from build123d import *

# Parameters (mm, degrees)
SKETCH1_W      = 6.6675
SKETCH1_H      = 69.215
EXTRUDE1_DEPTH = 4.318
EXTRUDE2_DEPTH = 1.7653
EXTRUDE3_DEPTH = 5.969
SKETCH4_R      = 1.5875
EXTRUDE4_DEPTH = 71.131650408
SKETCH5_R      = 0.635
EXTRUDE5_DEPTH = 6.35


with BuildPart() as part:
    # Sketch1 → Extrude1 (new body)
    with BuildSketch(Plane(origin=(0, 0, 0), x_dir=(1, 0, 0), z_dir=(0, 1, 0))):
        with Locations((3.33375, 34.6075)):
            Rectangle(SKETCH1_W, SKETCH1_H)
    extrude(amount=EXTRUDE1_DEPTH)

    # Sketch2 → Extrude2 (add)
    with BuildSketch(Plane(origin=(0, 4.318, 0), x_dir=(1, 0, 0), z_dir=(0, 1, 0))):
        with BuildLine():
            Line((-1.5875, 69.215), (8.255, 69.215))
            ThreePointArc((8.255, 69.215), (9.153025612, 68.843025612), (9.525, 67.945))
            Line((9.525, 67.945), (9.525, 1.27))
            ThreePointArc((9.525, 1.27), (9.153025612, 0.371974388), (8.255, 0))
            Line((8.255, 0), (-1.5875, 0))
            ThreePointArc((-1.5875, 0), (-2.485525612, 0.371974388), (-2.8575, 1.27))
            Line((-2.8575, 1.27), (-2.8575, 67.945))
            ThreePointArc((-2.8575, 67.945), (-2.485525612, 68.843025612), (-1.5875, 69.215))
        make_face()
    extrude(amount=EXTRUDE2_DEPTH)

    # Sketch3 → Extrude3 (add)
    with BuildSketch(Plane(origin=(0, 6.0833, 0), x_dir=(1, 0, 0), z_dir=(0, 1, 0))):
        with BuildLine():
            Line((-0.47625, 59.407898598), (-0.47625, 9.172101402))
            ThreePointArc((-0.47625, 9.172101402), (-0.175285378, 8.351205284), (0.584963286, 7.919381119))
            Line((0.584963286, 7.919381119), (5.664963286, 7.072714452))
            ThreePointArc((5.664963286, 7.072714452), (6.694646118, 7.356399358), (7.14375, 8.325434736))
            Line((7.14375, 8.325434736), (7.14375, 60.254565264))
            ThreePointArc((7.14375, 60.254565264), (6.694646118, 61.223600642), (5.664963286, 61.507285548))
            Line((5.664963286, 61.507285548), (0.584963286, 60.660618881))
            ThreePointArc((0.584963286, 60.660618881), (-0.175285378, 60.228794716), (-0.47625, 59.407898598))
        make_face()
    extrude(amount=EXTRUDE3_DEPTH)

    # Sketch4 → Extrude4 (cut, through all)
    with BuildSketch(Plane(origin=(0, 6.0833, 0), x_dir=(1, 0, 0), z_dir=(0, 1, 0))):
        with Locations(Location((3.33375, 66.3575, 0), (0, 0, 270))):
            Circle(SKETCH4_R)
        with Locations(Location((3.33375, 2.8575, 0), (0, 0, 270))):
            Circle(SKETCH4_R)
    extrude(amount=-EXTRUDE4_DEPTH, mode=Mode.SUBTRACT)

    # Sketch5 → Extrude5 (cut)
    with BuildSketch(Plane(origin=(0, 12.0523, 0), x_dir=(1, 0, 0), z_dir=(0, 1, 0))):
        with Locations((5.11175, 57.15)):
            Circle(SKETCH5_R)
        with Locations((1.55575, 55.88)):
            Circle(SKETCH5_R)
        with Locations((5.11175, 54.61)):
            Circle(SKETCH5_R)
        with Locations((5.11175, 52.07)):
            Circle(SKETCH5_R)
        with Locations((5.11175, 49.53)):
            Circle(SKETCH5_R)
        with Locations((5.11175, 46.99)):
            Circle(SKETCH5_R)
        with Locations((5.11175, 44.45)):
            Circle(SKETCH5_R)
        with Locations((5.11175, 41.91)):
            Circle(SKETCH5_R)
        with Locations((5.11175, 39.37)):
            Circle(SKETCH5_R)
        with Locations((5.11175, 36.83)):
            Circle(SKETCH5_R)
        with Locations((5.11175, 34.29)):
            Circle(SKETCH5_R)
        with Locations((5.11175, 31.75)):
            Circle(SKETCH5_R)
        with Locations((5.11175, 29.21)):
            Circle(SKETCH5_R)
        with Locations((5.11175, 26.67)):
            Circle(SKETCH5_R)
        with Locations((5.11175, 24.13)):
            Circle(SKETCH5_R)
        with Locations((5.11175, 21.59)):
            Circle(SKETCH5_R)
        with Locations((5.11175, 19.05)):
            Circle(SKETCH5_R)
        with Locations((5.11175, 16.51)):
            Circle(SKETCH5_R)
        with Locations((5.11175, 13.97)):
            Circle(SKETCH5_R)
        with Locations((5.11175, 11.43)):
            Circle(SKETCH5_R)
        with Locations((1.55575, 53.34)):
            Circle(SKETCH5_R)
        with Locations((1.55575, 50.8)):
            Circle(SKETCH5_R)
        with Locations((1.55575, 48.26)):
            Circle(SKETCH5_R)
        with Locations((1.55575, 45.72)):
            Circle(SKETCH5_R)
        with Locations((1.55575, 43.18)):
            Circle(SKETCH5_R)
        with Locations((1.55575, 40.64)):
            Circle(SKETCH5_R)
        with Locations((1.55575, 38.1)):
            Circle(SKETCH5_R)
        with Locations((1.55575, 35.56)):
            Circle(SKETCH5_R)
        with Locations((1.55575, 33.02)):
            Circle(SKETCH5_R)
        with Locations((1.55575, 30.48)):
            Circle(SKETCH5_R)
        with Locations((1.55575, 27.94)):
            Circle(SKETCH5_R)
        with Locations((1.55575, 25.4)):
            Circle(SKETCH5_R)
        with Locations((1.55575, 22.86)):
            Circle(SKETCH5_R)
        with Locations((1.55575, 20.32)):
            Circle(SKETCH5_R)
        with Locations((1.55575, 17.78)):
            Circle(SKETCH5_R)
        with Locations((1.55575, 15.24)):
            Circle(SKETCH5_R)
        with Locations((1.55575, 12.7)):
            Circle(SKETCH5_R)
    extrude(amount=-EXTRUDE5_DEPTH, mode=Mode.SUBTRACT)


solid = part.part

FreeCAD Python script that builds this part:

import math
import FreeCAD as App
import Part
import Sketcher

V = App.Vector
Q = App.Units.Quantity


def add_polygon(sketch, points):
    """Adds a closed chain of lines whose ends are joined by coincident constraints."""
    first, n = sketch.GeometryCount, len(points)
    for a, b in zip(points, points[1:] + points[:1]):
        sketch.addGeometry(Part.LineSegment(App.Vector(*a, 0), App.Vector(*b, 0)), False)
    for i in range(n):
        sketch.addConstraint(Sketcher.Constraint("Coincident", first + i, 2, first + (i + 1) % n, 1))

doc = App.newDocument("Part")
body = doc.addObject("PartDesign::Body", "Body")

# Sketch on XZ plane
sketch1 = body.newObject("Sketcher::SketchObject", "Sketch")
sketch1.AttachmentSupport = (doc.getObject("XZ_Plane"), [""])
sketch1.MapMode = "FlatFace"
add_polygon(sketch1, [(0, -69), (0, 0), (7, 0), (7, -69)])  # lines 0-3
sketch1.addConstraint([
    Sketcher.Constraint("Vertical", 0),
    Sketcher.Constraint("Horizontal", 1),
    Sketcher.Constraint("Vertical", 2),
    Sketcher.Constraint("Horizontal", 3),
    Sketcher.Constraint("Coincident", 0, 2, -1, 1),
    Sketcher.Constraint("DistanceY", 0, 1, 0, 2, Q("2.725 in")),
    Sketcher.Constraint("DistanceX", 1, 1, 1, 2, Q("0.2625 in")),
])
pad1 = body.newObject("PartDesign::Pad", "Pad")
pad1.Profile = sketch1
pad1.Length = Q("0.17 in")
pad1.Reversed = True

# Sketch on XZ plane
sketch2 = body.newObject("Sketcher::SketchObject", "Sketch001")
sketch2.AttachmentSupport = (doc.getObject("XZ_Plane"), [""])
sketch2.MapMode = "FlatFace"
sketch2.AttachmentOffset = App.Placement(V(0, 0, -0.17 * 25.4), App.Rotation())
sketch2.addGeometry([
    Part.LineSegment(V(8.3, -69.2, 0), V(-1.6, -69.2, 0)),  # 0
    Part.ArcOfCircle(Part.Circle(V(-1.6, -67.9, 0), V(0, 0, 1), 1.3), math.radians(180), math.radians(270)),  # 1
    Part.LineSegment(V(-2.9, -67.9, 0), V(-2.9, -1.3, 0)),  # 2
    Part.ArcOfCircle(Part.Circle(V(-1.6, -1.3, 0), V(0, 0, 1), 1.3), math.radians(90), math.radians(180)),  # 3
    Part.LineSegment(V(-1.6, 0, 0), V(8.3, 0, 0)),  # 4
    Part.ArcOfCircle(Part.Circle(V(8.3, -1.3, 0), V(0, 0, 1), 1.3), math.radians(0), math.radians(90)),  # 5
    Part.LineSegment(V(9.5, -1.3, 0), V(9.5, -67.9, 0)),  # 6
    Part.ArcOfCircle(Part.Circle(V(8.3, -67.9, 0), V(0, 0, 1), 1.3), math.radians(-90), math.radians(0)),  # 7
], False)
sketch2.addConstraint([
    Sketcher.Constraint("Tangent", 0, 2, 1, 2),
    Sketcher.Constraint("Tangent", 1, 1, 2, 1),
    Sketcher.Constraint("Tangent", 2, 2, 3, 2),
    Sketcher.Constraint("Tangent", 3, 1, 4, 1),
    Sketcher.Constraint("Tangent", 4, 2, 5, 2),
    Sketcher.Constraint("Tangent", 5, 1, 6, 1),
    Sketcher.Constraint("Tangent", 6, 2, 7, 2),
    Sketcher.Constraint("Tangent", 7, 1, 0, 1),
    Sketcher.Constraint("Horizontal", 0),
    Sketcher.Constraint("Vertical", 2),
    Sketcher.Constraint("Horizontal", 4),
    Sketcher.Constraint("Vertical", 6),
    Sketcher.Constraint("Equal", 1, 3),
    Sketcher.Constraint("Equal", 3, 5),
    Sketcher.Constraint("Equal", 5, 7),
    Sketcher.Constraint("PointOnObject", 3, 1, -1),
    Sketcher.Constraint("Radius", 1, Q("0.05 in")),
    Sketcher.Constraint("DistanceY", 2, 1, 2, 2, Q("2.625 in")),
    Sketcher.Constraint("DistanceX", 0, 2, 0, 1, Q("0.3875 in")),
    Sketcher.Constraint("DistanceX", 1, 3, -1, 1, Q("0.0625 in")),
])
pad2 = body.newObject("PartDesign::Pad", "Pad001")
pad2.Profile = sketch2
pad2.Length = Q("0.0695 in")
pad2.Reversed = True

# Sketch on XZ plane
sketch3 = body.newObject("Sketcher::SketchObject", "Sketch002")
sketch3.AttachmentSupport = (doc.getObject("XZ_Plane"), [""])
sketch3.MapMode = "FlatFace"
sketch3.AttachmentOffset = App.Placement(V(0, 0, -0.2395 * 25.4), App.Rotation())
sketch3.addGeometry([
    Part.LineSegment(V(-0.5, -59.4, 0), V(-0.5, -9.2, 0)),  # 0
    Part.ArcOfCircle(Part.Circle(V(0.8, -9.2, 0), V(0, 0, 1), 1.3), math.radians(99), math.radians(180)),  # 1
    Part.LineSegment(V(0.6, -7.9, 0), V(5.7, -7.1, 0)),  # 2
    Part.ArcOfCircle(Part.Circle(V(5.9, -8.3, 0), V(0, 0, 1), 1.3), math.radians(0), math.radians(99)),  # 3
    Part.LineSegment(V(7.1, -8.3, 0), V(7.1, -60.3, 0)),  # 4
    Part.ArcOfCircle(Part.Circle(V(5.9, -60.3, 0), V(0, 0, 1), 1.3), math.radians(-99), math.radians(0)),  # 5
    Part.LineSegment(V(5.7, -61.5, 0), V(0.6, -60.7, 0)),  # 6
    Part.ArcOfCircle(Part.Circle(V(0.8, -59.4, 0), V(0, 0, 1), 1.3), math.radians(180), math.radians(261)),  # 7
], False)
sketch3.addConstraint([
    Sketcher.Constraint("Tangent", 0, 2, 1, 2),
    Sketcher.Constraint("Tangent", 1, 1, 2, 1),
    Sketcher.Constraint("Tangent", 2, 2, 3, 2),
    Sketcher.Constraint("Tangent", 3, 1, 4, 1),
    Sketcher.Constraint("Tangent", 4, 2, 5, 2),
    Sketcher.Constraint("Tangent", 5, 1, 6, 1),
    Sketcher.Constraint("Tangent", 6, 2, 7, 2),
    Sketcher.Constraint("Tangent", 7, 1, 0, 1),
    Sketcher.Constraint("Vertical", 0),
    Sketcher.Constraint("Vertical", 4),
    Sketcher.Constraint("Equal", 1, 3),
    Sketcher.Constraint("Equal", 3, 5),
    Sketcher.Constraint("Equal", 5, 7),
    Sketcher.Constraint("Vertical", 2, 2, 5, 1),
    Sketcher.Constraint("Radius", 1, Q("0.05 in")),
    Sketcher.Constraint("DistanceX", 1, 3, 3, 3, Q("0.2 in")),
    Sketcher.Constraint("DistanceX", -1, 1, 1, 3, Q("0.03125 in")),
    Sketcher.Constraint("DistanceY", 4, 2, 4, 1, 51.929131),
    Sketcher.Constraint("DistanceY", 1, 3, -1, 1, 9.172101),
    Sketcher.Constraint("DistanceY", 7, 3, -1, 1, 59.407899),
])
pad3 = body.newObject("PartDesign::Pad", "Pad002")
pad3.Profile = sketch3
pad3.Length = Q("0.235 in")
pad3.Reversed = True

# Sketch on XZ plane
sketch4 = body.newObject("Sketcher::SketchObject", "Sketch003")
sketch4.AttachmentSupport = (doc.getObject("XZ_Plane"), [""])
sketch4.MapMode = "FlatFace"
sketch4.AttachmentOffset = App.Placement(V(0, 0, -0.2395 * 25.4), App.Rotation())
sketch4.addGeometry([
    Part.Circle(V(3.3, -66.4, 0), V(0, 0, 1), 1.6),
    Part.Circle(V(3.3, -2.9, 0), V(0, 0, 1), 1.6),
], False)
sketch4.addConstraint([
    Sketcher.Constraint("Equal", 0, 1),
    Sketcher.Constraint("Vertical", 0, 3, 1, 3),
    Sketcher.Constraint("Diameter", 0, Q("0.125 in")),
    Sketcher.Constraint("DistanceY", 0, 3, 1, 3, Q("2.5 in")),
    Sketcher.Constraint("DistanceY", 0, 3, -1, 1, Q("2.6125 in")),
    Sketcher.Constraint("DistanceX", -1, 1, 0, 3, 3.33375),
])
pocket1 = body.newObject("PartDesign::Pocket", "Pocket")
pocket1.Profile = sketch4
pocket1.Type = "ThroughAll"
pocket1.Reversed = True

# Sketch on XZ plane
sketch5 = body.newObject("Sketcher::SketchObject", "Sketch004")
sketch5.AttachmentSupport = (doc.getObject("XZ_Plane"), [""])
sketch5.MapMode = "FlatFace"
sketch5.AttachmentOffset = App.Placement(V(0, 0, -0.4745 * 25.4), App.Rotation())
sketch5.addGeometry([
    Part.Circle(V(5.1, -57.1, 0), V(0, 0, 1), 0.6),  # 0
    Part.Circle(V(1.6, -55.9, 0), V(0, 0, 1), 0.6),  # 1
    Part.Circle(V(5.1, -54.6, 0), V(0, 0, 1), 0.6),  # 2
    Part.Circle(V(5.1, -52.1, 0), V(0, 0, 1), 0.6),  # 3
    Part.Circle(V(5.1, -49.5, 0), V(0, 0, 1), 0.6),  # 4
    Part.Circle(V(5.1, -47, 0), V(0, 0, 1), 0.6),  # 5
    Part.Circle(V(5.1, -44.5, 0), V(0, 0, 1), 0.6),  # 6
    Part.Circle(V(5.1, -41.9, 0), V(0, 0, 1), 0.6),  # 7
    Part.Circle(V(5.1, -39.4, 0), V(0, 0, 1), 0.6),  # 8
    Part.Circle(V(5.1, -36.8, 0), V(0, 0, 1), 0.6),  # 9
    Part.Circle(V(5.1, -34.3, 0), V(0, 0, 1), 0.6),  # 10
    Part.Circle(V(5.1, -31.8, 0), V(0, 0, 1), 0.6),  # 11
    Part.Circle(V(5.1, -29.2, 0), V(0, 0, 1), 0.6),  # 12
    Part.Circle(V(5.1, -26.7, 0), V(0, 0, 1), 0.6),  # 13
    Part.Circle(V(5.1, -24.1, 0), V(0, 0, 1), 0.6),  # 14
    Part.Circle(V(5.1, -21.6, 0), V(0, 0, 1), 0.6),  # 15
    Part.Circle(V(5.1, -19.1, 0), V(0, 0, 1), 0.6),  # 16
    Part.Circle(V(5.1, -16.5, 0), V(0, 0, 1), 0.6),  # 17
    Part.Circle(V(5.1, -14, 0), V(0, 0, 1), 0.6),  # 18
    Part.Circle(V(5.1, -11.4, 0), V(0, 0, 1), 0.6),  # 19
    Part.Circle(V(1.6, -53.3, 0), V(0, 0, 1), 0.6),  # 20
    Part.Circle(V(1.6, -50.8, 0), V(0, 0, 1), 0.6),  # 21
    Part.Circle(V(1.6, -48.3, 0), V(0, 0, 1), 0.6),  # 22
    Part.Circle(V(1.6, -45.7, 0), V(0, 0, 1), 0.6),  # 23
    Part.Circle(V(1.6, -43.2, 0), V(0, 0, 1), 0.6),  # 24
    Part.Circle(V(1.6, -40.6, 0), V(0, 0, 1), 0.6),  # 25
    Part.Circle(V(1.6, -38.1, 0), V(0, 0, 1), 0.6),  # 26
    Part.Circle(V(1.6, -35.6, 0), V(0, 0, 1), 0.6),  # 27
    Part.Circle(V(1.6, -33, 0), V(0, 0, 1), 0.6),  # 28
    Part.Circle(V(1.6, -30.5, 0), V(0, 0, 1), 0.6),  # 29
    Part.Circle(V(1.6, -27.9, 0), V(0, 0, 1), 0.6),  # 30
    Part.Circle(V(1.6, -25.4, 0), V(0, 0, 1), 0.6),  # 31
    Part.Circle(V(1.6, -22.9, 0), V(0, 0, 1), 0.6),  # 32
    Part.Circle(V(1.6, -20.3, 0), V(0, 0, 1), 0.6),  # 33
    Part.Circle(V(1.6, -17.8, 0), V(0, 0, 1), 0.6),  # 34
    Part.Circle(V(1.6, -15.2, 0), V(0, 0, 1), 0.6),  # 35
    Part.Circle(V(1.6, -12.7, 0), V(0, 0, 1), 0.6),  # 36
], False)
sketch5.addConstraint([
    Sketcher.Constraint("Equal", 0, 1),
    Sketcher.Constraint("Equal", 1, 2),
    Sketcher.Constraint("Equal", 2, 3),
    Sketcher.Constraint("Equal", 3, 4),
    Sketcher.Constraint("Equal", 4, 5),
    Sketcher.Constraint("Equal", 5, 6),
    Sketcher.Constraint("Equal", 6, 7),
    Sketcher.Constraint("Equal", 7, 8),
    Sketcher.Constraint("Equal", 8, 9),
    Sketcher.Constraint("Equal", 9, 10),
    Sketcher.Constraint("Equal", 10, 11),
    Sketcher.Constraint("Equal", 11, 12),
    Sketcher.Constraint("Equal", 12, 13),
    Sketcher.Constraint("Equal", 13, 14),
    Sketcher.Constraint("Equal", 14, 15),
    Sketcher.Constraint("Equal", 15, 16),
    Sketcher.Constraint("Equal", 16, 17),
    Sketcher.Constraint("Equal", 17, 18),
    Sketcher.Constraint("Equal", 18, 19),
    Sketcher.Constraint("Equal", 19, 20),
    Sketcher.Constraint("Equal", 20, 21),
    Sketcher.Constraint("Equal", 21, 22),
    Sketcher.Constraint("Equal", 22, 23),
    Sketcher.Constraint("Equal", 23, 24),
    Sketcher.Constraint("Equal", 24, 25),
    Sketcher.Constraint("Equal", 25, 26),
    Sketcher.Constraint("Equal", 26, 27),
    Sketcher.Constraint("Equal", 27, 28),
    Sketcher.Constraint("Equal", 28, 29),
    Sketcher.Constraint("Equal", 29, 30),
    Sketcher.Constraint("Equal", 30, 31),
    Sketcher.Constraint("Equal", 31, 32),
    Sketcher.Constraint("Equal", 32, 33),
    Sketcher.Constraint("Equal", 33, 34),
    Sketcher.Constraint("Equal", 34, 35),
    Sketcher.Constraint("Equal", 35, 36),
    Sketcher.Constraint("Vertical", 0, 3, 2, 3),
    Sketcher.Constraint("Vertical", 2, 3, 3, 3),
    Sketcher.Constraint("Vertical", 3, 3, 4, 3),
    Sketcher.Constraint("Vertical", 4, 3, 5, 3),
    Sketcher.Constraint("Vertical", 5, 3, 6, 3),
    Sketcher.Constraint("Vertical", 6, 3, 7, 3),
    Sketcher.Constraint("Vertical", 7, 3, 8, 3),
    Sketcher.Constraint("Vertical", 8, 3, 9, 3),
    Sketcher.Constraint("Vertical", 9, 3, 10, 3),
    Sketcher.Constraint("Vertical", 10, 3, 11, 3),
    Sketcher.Constraint("Vertical", 11, 3, 12, 3),
    Sketcher.Constraint("Vertical", 12, 3, 13, 3),
    Sketcher.Constraint("Vertical", 13, 3, 14, 3),
    Sketcher.Constraint("Vertical", 14, 3, 15, 3),
    Sketcher.Constraint("Vertical", 15, 3, 16, 3),
    Sketcher.Constraint("Vertical", 16, 3, 17, 3),
    Sketcher.Constraint("Vertical", 17, 3, 18, 3),
    Sketcher.Constraint("Vertical", 18, 3, 19, 3),
    Sketcher.Constraint("Vertical", 1, 3, 20, 3),
    Sketcher.Constraint("Vertical", 20, 3, 21, 3),
    Sketcher.Constraint("Vertical", 21, 3, 22, 3),
    Sketcher.Constraint("Vertical", 22, 3, 23, 3),
    Sketcher.Constraint("Vertical", 23, 3, 24, 3),
    Sketcher.Constraint("Vertical", 24, 3, 25, 3),
    Sketcher.Constraint("Vertical", 25, 3, 26, 3),
    Sketcher.Constraint("Vertical", 26, 3, 27, 3),
    Sketcher.Constraint("Vertical", 27, 3, 28, 3),
    Sketcher.Constraint("Vertical", 28, 3, 29, 3),
    Sketcher.Constraint("Vertical", 29, 3, 30, 3),
    Sketcher.Constraint("Vertical", 30, 3, 31, 3),
    Sketcher.Constraint("Vertical", 31, 3, 32, 3),
    Sketcher.Constraint("Vertical", 32, 3, 33, 3),
    Sketcher.Constraint("Vertical", 33, 3, 34, 3),
    Sketcher.Constraint("Vertical", 34, 3, 35, 3),
    Sketcher.Constraint("Vertical", 35, 3, 36, 3),
    Sketcher.Constraint("Diameter", 0, Q("0.05 in")),
    Sketcher.Constraint("DistanceY", 21, 3, -1, 1, Q("2 in")),
    Sketcher.Constraint("DistanceY", 31, 3, -1, 1, Q("1 in")),
    Sketcher.Constraint("DistanceY", 1, 3, -1, 1, Q("2.2 in")),
    Sketcher.Constraint("DistanceY", 20, 3, -1, 1, Q("2.1 in")),
    Sketcher.Constraint("DistanceY", 22, 3, -1, 1, Q("1.9 in")),
    Sketcher.Constraint("DistanceY", 23, 3, -1, 1, Q("1.8 in")),
    Sketcher.Constraint("DistanceY", 24, 3, -1, 1, Q("1.7 in")),
    Sketcher.Constraint("DistanceY", 25, 3, -1, 1, Q("1.6 in")),
    Sketcher.Constraint("DistanceY", 26, 3, -1, 1, Q("1.5 in")),
    Sketcher.Constraint("DistanceY", 27, 3, -1, 1, Q("1.4 in")),
    Sketcher.Constraint("DistanceY", 28, 3, -1, 1, Q("1.3 in")),
    Sketcher.Constraint("DistanceY", 29, 3, -1, 1, Q("1.2 in")),
    Sketcher.Constraint("DistanceY", 30, 3, -1, 1, Q("1.1 in")),
    Sketcher.Constraint("DistanceY", 32, 3, -1, 1, Q("0.9 in")),
    Sketcher.Constraint("DistanceY", 33, 3, -1, 1, Q("0.8 in")),
    Sketcher.Constraint("DistanceY", 34, 3, -1, 1, Q("0.7 in")),
    Sketcher.Constraint("DistanceY", 35, 3, -1, 1, Q("0.6 in")),
    Sketcher.Constraint("DistanceY", 36, 3, -1, 1, Q("0.5 in")),
    Sketcher.Constraint("DistanceY", 0, 3, 2, 3, Q("0.1 in")),
    Sketcher.Constraint("DistanceY", 2, 3, 3, 3, Q("0.1 in")),
    Sketcher.Constraint("DistanceY", 3, 3, 4, 3, Q("0.1 in")),
    Sketcher.Constraint("DistanceY", 4, 3, 5, 3, Q("0.1 in")),
    Sketcher.Constraint("DistanceY", 5, 3, 6, 3, Q("0.1 in")),
    Sketcher.Constraint("DistanceY", 6, 3, 7, 3, Q("0.1 in")),
    Sketcher.Constraint("DistanceY", 7, 3, 8, 3, Q("0.1 in")),
    Sketcher.Constraint("DistanceY", 8, 3, 9, 3, Q("0.1 in")),
    Sketcher.Constraint("DistanceY", 9, 3, 10, 3, Q("0.1 in")),
    Sketcher.Constraint("DistanceY", 10, 3, 11, 3, Q("0.1 in")),
    Sketcher.Constraint("DistanceY", 11, 3, 12, 3, Q("0.1 in")),
    Sketcher.Constraint("DistanceY", 12, 3, 13, 3, Q("0.1 in")),
    Sketcher.Constraint("DistanceY", 13, 3, 14, 3, Q("0.1 in")),
    Sketcher.Constraint("DistanceY", 14, 3, 15, 3, Q("0.1 in")),
    Sketcher.Constraint("DistanceY", 15, 3, 16, 3, Q("0.1 in")),
    Sketcher.Constraint("DistanceY", 16, 3, 17, 3, Q("0.1 in")),
    Sketcher.Constraint("DistanceY", 17, 3, 18, 3, Q("0.1 in")),
    Sketcher.Constraint("DistanceY", 18, 3, 19, 3, Q("0.1 in")),
    Sketcher.Constraint("DistanceY", 0, 3, -1, 1, Q("2.25 in")),
    Sketcher.Constraint("DistanceX", 1, 3, 0, 3, Q("0.14 in")),
    Sketcher.Constraint("DistanceX", -1, 1, 0, 3, 5.11175),
])
pocket2 = body.newObject("PartDesign::Pocket", "Pocket001")
pocket2.Profile = sketch5
pocket2.Length = Q("0.25 in")
pocket2.Reversed = True

doc.recompute()
